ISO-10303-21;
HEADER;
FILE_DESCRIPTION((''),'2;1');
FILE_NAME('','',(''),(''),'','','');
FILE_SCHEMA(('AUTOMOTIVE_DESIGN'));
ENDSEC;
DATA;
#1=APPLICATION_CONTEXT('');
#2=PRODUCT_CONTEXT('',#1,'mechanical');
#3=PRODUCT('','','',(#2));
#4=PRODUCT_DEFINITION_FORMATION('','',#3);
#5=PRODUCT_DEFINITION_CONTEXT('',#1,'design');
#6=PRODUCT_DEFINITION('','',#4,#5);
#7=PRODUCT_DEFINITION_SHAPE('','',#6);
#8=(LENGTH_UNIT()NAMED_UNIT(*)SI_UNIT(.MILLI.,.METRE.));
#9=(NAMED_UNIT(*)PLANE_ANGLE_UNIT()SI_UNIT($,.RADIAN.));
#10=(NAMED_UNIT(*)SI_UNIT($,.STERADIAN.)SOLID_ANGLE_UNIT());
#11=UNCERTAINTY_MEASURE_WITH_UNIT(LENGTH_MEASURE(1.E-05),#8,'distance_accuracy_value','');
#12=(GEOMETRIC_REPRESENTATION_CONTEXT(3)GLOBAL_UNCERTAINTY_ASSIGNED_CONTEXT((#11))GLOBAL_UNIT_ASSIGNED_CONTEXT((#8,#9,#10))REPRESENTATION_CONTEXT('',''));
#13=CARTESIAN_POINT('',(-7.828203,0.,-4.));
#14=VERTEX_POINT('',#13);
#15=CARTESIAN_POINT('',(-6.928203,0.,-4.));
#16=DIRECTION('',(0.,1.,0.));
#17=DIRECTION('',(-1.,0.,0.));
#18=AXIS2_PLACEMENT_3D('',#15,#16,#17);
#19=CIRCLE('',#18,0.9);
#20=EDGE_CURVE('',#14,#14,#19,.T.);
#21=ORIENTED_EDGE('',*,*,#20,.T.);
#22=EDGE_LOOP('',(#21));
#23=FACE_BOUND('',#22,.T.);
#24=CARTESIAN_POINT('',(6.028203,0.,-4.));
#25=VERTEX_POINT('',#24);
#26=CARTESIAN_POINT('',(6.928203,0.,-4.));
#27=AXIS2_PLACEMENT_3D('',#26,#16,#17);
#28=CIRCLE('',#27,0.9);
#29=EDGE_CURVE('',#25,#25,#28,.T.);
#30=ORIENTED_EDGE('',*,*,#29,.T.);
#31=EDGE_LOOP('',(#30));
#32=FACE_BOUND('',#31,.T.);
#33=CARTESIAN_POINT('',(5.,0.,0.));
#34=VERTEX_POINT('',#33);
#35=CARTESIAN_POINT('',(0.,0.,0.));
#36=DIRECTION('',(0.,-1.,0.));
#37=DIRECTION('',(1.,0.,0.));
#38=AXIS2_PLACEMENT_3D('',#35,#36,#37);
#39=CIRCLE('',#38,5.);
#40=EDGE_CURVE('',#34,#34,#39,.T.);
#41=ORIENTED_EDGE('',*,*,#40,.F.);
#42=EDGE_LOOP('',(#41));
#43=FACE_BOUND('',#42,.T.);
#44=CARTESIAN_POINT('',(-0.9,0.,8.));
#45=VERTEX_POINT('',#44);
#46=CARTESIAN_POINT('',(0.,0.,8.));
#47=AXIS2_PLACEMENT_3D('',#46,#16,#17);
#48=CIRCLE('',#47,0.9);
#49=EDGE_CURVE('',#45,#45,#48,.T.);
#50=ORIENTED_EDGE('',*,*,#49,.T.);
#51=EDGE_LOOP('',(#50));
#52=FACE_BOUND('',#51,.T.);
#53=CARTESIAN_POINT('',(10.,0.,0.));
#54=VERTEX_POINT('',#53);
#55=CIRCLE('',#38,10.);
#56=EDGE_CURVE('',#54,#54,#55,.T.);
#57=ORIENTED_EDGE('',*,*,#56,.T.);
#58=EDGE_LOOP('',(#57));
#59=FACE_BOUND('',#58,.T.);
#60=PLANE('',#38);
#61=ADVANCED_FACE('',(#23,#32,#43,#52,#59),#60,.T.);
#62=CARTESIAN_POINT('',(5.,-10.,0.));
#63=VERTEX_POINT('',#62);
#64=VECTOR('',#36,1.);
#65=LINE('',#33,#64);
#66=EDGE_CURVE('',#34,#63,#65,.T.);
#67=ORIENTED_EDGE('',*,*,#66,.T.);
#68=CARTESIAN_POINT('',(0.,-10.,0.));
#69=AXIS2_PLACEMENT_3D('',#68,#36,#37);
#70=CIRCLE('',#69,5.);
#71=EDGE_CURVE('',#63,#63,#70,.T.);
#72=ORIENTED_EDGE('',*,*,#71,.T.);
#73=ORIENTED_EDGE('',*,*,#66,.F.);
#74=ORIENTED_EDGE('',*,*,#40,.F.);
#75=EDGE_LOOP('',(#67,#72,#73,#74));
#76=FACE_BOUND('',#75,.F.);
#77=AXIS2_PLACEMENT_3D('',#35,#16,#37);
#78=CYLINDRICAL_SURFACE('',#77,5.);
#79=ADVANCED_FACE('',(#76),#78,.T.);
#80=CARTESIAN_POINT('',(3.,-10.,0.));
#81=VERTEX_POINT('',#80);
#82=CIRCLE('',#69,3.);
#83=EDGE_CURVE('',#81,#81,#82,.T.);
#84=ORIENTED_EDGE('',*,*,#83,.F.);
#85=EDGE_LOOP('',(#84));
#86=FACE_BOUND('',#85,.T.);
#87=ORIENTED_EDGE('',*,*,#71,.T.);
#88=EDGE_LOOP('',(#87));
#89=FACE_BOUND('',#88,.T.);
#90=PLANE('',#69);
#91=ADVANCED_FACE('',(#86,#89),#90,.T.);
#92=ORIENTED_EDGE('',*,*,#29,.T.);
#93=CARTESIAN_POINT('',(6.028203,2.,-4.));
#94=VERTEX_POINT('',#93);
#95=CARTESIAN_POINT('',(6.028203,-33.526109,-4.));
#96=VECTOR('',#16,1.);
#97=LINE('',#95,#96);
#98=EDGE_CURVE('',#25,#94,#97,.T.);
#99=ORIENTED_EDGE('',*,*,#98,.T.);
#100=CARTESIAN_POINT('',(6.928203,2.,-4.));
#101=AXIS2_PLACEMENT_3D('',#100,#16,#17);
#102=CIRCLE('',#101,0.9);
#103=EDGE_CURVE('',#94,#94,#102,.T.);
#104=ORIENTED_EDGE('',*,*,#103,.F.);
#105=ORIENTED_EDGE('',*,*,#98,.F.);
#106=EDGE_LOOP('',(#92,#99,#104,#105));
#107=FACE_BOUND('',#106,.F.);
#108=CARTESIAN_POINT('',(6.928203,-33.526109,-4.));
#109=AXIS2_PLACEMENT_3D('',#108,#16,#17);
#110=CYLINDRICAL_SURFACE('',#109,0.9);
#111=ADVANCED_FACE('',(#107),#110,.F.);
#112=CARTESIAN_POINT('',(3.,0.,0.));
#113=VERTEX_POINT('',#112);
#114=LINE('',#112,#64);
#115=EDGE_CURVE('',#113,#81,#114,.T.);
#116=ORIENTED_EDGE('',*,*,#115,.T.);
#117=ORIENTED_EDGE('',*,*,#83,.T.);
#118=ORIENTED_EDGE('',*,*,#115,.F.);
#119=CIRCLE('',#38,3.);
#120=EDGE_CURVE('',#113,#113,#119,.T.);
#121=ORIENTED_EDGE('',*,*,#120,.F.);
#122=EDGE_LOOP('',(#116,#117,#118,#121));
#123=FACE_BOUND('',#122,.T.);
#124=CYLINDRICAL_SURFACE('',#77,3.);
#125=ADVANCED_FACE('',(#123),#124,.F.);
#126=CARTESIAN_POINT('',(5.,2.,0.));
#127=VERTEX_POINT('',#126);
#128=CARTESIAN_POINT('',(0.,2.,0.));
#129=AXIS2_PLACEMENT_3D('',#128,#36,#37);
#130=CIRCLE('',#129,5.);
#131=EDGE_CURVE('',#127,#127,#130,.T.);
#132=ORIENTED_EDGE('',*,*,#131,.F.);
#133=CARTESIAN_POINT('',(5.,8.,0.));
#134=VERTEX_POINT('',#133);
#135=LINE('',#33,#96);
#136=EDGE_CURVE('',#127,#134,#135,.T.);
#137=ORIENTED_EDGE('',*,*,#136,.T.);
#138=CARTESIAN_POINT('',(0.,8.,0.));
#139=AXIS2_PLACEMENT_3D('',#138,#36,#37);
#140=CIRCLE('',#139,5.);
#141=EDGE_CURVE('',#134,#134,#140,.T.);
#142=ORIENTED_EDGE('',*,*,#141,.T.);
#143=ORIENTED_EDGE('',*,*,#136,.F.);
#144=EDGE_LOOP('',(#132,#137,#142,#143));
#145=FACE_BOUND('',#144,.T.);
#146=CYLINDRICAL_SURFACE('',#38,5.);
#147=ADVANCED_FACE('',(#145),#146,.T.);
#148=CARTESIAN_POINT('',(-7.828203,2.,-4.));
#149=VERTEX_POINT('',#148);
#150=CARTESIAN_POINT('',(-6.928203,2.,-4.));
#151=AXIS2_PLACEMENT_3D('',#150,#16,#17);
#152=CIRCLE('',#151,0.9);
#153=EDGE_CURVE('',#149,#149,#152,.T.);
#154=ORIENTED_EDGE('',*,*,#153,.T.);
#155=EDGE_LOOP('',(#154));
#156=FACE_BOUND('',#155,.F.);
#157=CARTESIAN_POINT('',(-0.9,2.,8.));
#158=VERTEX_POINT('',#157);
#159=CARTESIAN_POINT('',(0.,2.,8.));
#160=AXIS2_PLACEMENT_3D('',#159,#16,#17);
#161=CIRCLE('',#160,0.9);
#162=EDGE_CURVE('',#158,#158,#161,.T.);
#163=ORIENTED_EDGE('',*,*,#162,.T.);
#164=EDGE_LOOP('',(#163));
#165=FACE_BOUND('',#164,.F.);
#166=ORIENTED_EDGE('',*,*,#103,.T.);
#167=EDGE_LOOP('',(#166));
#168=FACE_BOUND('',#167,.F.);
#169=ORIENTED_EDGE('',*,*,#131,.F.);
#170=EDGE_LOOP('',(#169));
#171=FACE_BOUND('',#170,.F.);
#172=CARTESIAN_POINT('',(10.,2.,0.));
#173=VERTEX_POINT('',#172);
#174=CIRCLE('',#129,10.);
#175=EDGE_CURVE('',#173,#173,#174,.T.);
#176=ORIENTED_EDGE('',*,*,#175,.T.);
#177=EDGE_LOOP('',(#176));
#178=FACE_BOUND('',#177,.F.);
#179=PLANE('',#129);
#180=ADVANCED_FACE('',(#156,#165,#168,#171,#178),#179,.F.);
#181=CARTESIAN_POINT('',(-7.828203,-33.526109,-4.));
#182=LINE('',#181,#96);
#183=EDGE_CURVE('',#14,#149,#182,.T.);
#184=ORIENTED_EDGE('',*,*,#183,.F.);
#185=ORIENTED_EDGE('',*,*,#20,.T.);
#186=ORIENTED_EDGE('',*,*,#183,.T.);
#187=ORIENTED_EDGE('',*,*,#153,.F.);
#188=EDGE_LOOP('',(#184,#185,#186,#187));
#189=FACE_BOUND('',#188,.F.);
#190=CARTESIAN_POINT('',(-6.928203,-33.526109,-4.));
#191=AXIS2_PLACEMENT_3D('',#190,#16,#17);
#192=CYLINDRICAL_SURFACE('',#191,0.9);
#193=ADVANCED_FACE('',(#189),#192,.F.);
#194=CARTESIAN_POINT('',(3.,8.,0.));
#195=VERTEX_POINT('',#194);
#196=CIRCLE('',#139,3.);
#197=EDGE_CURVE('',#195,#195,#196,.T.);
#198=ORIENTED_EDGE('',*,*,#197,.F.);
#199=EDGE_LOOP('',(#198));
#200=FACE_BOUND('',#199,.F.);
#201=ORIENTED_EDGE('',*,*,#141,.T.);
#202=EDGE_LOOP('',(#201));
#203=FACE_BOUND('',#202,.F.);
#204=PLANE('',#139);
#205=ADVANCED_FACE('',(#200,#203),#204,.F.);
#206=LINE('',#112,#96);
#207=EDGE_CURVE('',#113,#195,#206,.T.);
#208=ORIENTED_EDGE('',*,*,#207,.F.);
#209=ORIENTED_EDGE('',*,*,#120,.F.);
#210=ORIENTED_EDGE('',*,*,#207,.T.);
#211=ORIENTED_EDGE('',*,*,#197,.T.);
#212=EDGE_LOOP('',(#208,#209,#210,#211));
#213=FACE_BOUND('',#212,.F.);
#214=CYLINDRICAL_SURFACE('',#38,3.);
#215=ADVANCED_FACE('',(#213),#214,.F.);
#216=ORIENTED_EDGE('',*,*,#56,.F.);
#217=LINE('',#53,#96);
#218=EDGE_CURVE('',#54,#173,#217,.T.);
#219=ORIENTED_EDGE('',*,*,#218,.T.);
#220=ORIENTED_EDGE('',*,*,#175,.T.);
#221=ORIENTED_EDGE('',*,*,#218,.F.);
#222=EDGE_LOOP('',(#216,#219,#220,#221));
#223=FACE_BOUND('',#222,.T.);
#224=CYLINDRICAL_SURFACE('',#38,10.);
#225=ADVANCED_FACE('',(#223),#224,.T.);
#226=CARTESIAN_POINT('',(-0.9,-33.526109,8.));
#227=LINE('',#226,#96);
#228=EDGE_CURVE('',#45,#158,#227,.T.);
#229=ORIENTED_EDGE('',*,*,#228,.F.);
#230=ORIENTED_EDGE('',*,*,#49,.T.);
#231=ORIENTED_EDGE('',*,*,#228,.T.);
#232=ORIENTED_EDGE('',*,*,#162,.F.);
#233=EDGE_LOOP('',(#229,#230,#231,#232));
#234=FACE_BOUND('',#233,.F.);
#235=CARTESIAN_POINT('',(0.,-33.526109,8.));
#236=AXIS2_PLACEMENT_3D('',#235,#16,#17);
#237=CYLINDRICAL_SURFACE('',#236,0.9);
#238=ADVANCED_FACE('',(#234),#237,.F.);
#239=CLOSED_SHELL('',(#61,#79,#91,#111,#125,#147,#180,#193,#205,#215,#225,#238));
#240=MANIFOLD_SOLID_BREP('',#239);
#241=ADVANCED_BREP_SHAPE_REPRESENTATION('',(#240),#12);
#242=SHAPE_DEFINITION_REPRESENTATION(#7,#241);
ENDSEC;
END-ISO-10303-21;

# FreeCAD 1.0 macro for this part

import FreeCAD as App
import Part
import Sketcher
from FreeCAD import Vector

doc = App.newDocument("Part")
params = doc.addObject("Spreadsheet::Sheet", "Params")
for row, (alias, value) in enumerate([
    ("sketch1_diameter", "20 mm"),
    ("sketch1_diameter2", "10 mm"),
    ("pad1_length", "2 mm"),
    ("sketch2_diameter", "10 mm"),
    ("sketch2_diameter2", "6 mm"),
    ("pad2_length", "10 mm"),
    ("pad2_length2", "8 mm"),
    ("sketch3_diameter", "1.8 mm"),
    ("hole_diameter", "1.8 mm"),
], start=1):
    params.set(f"A{row}", alias)
    params.set(f"B{row}", "=" + value)
    params.setAlias(f"B{row}", alias)

body = doc.addObject("PartDesign::Body", "Body")

# Sketch on XZ plane
sketch1 = body.newObject("Sketcher::SketchObject", "Sketch")
sketch1.AttachmentSupport = (doc.getObject("XZ_Plane"), [""])
sketch1.MapMode = "FlatFace"
sketch1.addGeometry([
    Part.Circle(Vector(0, 0, 0), Vector(0, 0, 1), 10),
    Part.Circle(Vector(0, 0, 0), Vector(0, 0, 1), 5),
], False)
sketch1.addConstraint([
    Sketcher.Constraint("Coincident", 0, 3, -1, 1),
    Sketcher.Constraint("Coincident", 1, 3, -1, 1),
    Sketcher.Constraint("Diameter", 0, 20.0),
    Sketcher.Constraint("Diameter", 1, 10.0),
])
sketch1.setExpression("Constraints[2]", "Params.sketch1_diameter")
sketch1.setExpression("Constraints[3]", "Params.sketch1_diameter2")
pad1 = body.newObject("PartDesign::Pad", "Pad")
pad1.Profile = sketch1
pad1.setExpression("Length", "Params.pad1_length")
pad1.Reversed = True

# Sketch on XZ plane
sketch2 = body.newObject("Sketcher::SketchObject", "Sketch001")
sketch2.AttachmentSupport = (doc.getObject("XZ_Plane"), [""])
sketch2.MapMode = "FlatFace"
sketch2.addGeometry([
    Part.Circle(Vector(0, 0, 0), Vector(0, 0, 1), 5),
    Part.Circle(Vector(0, 0, 0), Vector(0, 0, 1), 3),
], False)
sketch2.addConstraint([
    Sketcher.Constraint("Coincident", 0, 3, -1, 1),
    Sketcher.Constraint("Coincident", 1, 3, -1, 1),
    Sketcher.Constraint("Diameter", 0, 10.0),
    Sketcher.Constraint("Diameter", 1, 6.0),
])
sketch2.setExpression("Constraints[2]", "Params.sketch2_diameter")
sketch2.setExpression("Constraints[3]", "Params.sketch2_diameter2")
pad2 = body.newObject("PartDesign::Pad", "Pad001")
pad2.Profile = sketch2
pad2.Type = "TwoLengths"
pad2.setExpression("Length", "Params.pad2_length")
pad2.setExpression("Length2", "Params.pad2_length2")

# Sketch on XZ plane
sketch3 = body.newObject("Sketcher::SketchObject", "Sketch002")
sketch3.AttachmentSupport = (doc.getObject("XZ_Plane"), [""])
sketch3.MapMode = "FlatFace"
sketch3.addGeometry([
    Part.Circle(Vector(0, 8, 0), Vector(0, 0, 1), 0.9),
    Part.Circle(Vector(6.9, -4, 0), Vector(0, 0, 1), 0.9),
    Part.Circle(Vector(-6.9, -4, 0), Vector(0, 0, 1), 0.9),
], False)
sketch3.addConstraint([
    Sketcher.Constraint("Equal", 0, 1),
    Sketcher.Constraint("Equal", 1, 2),
    Sketcher.Constraint("Symmetric", 1, 3, 2, 3, -2),
    Sketcher.Constraint("PointOnObject", 0, 3, -2),
    Sketcher.Constraint("Diameter", 0, 1.8),
    Sketcher.Constraint("DistanceY", -1, 1, 0, 3, 8.0),
    Sketcher.Constraint("DistanceY", 1, 3, -1, 1, 4.0),
    Sketcher.Constraint("DistanceX", -1, 1, 1, 3, 6.928203),
])
sketch3.setExpression("Constraints[4]", "Params.sketch3_diameter")
doc.recompute()
hole = body.newObject("PartDesign::Hole", "Hole")
hole.Profile = sketch3
hole.ThreadType = "None"
hole.setExpression("Diameter", "Params.hole_diameter")
hole.DepthType = "ThroughAll"

doc.recompute()
